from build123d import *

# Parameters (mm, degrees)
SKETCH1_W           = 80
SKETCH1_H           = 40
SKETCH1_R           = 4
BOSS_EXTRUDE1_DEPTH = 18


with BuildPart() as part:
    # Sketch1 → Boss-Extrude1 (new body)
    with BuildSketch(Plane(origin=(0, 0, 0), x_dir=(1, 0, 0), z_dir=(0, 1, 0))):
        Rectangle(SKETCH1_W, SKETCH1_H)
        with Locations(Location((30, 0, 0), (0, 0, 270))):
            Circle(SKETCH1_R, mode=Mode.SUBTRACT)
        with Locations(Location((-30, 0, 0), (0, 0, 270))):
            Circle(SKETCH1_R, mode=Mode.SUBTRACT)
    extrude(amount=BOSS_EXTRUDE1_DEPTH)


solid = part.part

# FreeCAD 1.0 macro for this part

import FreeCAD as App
import Part
import Sketcher
Q = App.Units.Quantity


def add_polygon(sketch, points):
    """Adds a closed chain of lines whose ends are joined by coincident constraints."""
    first, n = sketch.GeometryCount, len(points)
    for a, b in zip(points, points[1:] + points[:1]):
        sketch.addGeometry(Part.LineSegment(App.Vector(*a, 0), App.Vector(*b, 0)), False)
    for i in range(n):
        sketch.addConstraint(Sketcher.Constraint("Coincident", first + i, 2, first + (i + 1) % n, 1))

doc = App.newDocument("Part")
body = doc.addObject("PartDesign::Body", "Body")

sketch1 = doc.addObject("Sketcher::SketchObject", "Sketch")
body.addObject(sketch1)
sketch1.AttachmentSupport = (doc.XZ_Plane, [""])
sketch1.MapMode = "FlatFace"
add_polygon(sketch1, [(-40, -20), (-40, 20), (40, 20), (40, -20)])
sketch1.addGeometry(Part.Circle(App.Vector(-30, 0, 0), App.Vector(0, 0, 1), 4), False)
sketch1.addGeometry(Part.Circle(App.Vector(30, 0, 0), App.Vector(0, 0, 1), 4), False)
sketch1.addConstraint([
    Sketcher.Constraint("Vertical", 0),
    Sketcher.Constraint("Horizontal", 1),
    Sketcher.Constraint("Vertical", 2),
    Sketcher.Constraint("Horizontal", 3),
    Sketcher.Constraint("Equal", 4, 5),
    Sketcher.Constraint("Symmetric", 4, 3, 5, 3, -1, 1),
    Sketcher.Constraint("Symmetric", 0, 2, 2, 2, -1, 1),
    Sketcher.Constraint("PointOnObject", 4, 3, -1),
    Sketcher.Constraint("Diameter", 4, Q("8 mm")),
    Sketcher.Constraint("DistanceX", 1, 1, 1, 2, Q("80 mm")),
    Sketcher.Constraint("DistanceY", 0, 1, 0, 2, Q("40 mm")),
    Sketcher.Constraint("DistanceX", 4, 3, -1, 1, Q("30 mm")),
])
pad1 = doc.addObject("PartDesign::Pad", "Pad")
body.addObject(pad1)
pad1.Profile = sketch1
pad1.Length = 18
pad1.Reversed = True

doc.recompute()
